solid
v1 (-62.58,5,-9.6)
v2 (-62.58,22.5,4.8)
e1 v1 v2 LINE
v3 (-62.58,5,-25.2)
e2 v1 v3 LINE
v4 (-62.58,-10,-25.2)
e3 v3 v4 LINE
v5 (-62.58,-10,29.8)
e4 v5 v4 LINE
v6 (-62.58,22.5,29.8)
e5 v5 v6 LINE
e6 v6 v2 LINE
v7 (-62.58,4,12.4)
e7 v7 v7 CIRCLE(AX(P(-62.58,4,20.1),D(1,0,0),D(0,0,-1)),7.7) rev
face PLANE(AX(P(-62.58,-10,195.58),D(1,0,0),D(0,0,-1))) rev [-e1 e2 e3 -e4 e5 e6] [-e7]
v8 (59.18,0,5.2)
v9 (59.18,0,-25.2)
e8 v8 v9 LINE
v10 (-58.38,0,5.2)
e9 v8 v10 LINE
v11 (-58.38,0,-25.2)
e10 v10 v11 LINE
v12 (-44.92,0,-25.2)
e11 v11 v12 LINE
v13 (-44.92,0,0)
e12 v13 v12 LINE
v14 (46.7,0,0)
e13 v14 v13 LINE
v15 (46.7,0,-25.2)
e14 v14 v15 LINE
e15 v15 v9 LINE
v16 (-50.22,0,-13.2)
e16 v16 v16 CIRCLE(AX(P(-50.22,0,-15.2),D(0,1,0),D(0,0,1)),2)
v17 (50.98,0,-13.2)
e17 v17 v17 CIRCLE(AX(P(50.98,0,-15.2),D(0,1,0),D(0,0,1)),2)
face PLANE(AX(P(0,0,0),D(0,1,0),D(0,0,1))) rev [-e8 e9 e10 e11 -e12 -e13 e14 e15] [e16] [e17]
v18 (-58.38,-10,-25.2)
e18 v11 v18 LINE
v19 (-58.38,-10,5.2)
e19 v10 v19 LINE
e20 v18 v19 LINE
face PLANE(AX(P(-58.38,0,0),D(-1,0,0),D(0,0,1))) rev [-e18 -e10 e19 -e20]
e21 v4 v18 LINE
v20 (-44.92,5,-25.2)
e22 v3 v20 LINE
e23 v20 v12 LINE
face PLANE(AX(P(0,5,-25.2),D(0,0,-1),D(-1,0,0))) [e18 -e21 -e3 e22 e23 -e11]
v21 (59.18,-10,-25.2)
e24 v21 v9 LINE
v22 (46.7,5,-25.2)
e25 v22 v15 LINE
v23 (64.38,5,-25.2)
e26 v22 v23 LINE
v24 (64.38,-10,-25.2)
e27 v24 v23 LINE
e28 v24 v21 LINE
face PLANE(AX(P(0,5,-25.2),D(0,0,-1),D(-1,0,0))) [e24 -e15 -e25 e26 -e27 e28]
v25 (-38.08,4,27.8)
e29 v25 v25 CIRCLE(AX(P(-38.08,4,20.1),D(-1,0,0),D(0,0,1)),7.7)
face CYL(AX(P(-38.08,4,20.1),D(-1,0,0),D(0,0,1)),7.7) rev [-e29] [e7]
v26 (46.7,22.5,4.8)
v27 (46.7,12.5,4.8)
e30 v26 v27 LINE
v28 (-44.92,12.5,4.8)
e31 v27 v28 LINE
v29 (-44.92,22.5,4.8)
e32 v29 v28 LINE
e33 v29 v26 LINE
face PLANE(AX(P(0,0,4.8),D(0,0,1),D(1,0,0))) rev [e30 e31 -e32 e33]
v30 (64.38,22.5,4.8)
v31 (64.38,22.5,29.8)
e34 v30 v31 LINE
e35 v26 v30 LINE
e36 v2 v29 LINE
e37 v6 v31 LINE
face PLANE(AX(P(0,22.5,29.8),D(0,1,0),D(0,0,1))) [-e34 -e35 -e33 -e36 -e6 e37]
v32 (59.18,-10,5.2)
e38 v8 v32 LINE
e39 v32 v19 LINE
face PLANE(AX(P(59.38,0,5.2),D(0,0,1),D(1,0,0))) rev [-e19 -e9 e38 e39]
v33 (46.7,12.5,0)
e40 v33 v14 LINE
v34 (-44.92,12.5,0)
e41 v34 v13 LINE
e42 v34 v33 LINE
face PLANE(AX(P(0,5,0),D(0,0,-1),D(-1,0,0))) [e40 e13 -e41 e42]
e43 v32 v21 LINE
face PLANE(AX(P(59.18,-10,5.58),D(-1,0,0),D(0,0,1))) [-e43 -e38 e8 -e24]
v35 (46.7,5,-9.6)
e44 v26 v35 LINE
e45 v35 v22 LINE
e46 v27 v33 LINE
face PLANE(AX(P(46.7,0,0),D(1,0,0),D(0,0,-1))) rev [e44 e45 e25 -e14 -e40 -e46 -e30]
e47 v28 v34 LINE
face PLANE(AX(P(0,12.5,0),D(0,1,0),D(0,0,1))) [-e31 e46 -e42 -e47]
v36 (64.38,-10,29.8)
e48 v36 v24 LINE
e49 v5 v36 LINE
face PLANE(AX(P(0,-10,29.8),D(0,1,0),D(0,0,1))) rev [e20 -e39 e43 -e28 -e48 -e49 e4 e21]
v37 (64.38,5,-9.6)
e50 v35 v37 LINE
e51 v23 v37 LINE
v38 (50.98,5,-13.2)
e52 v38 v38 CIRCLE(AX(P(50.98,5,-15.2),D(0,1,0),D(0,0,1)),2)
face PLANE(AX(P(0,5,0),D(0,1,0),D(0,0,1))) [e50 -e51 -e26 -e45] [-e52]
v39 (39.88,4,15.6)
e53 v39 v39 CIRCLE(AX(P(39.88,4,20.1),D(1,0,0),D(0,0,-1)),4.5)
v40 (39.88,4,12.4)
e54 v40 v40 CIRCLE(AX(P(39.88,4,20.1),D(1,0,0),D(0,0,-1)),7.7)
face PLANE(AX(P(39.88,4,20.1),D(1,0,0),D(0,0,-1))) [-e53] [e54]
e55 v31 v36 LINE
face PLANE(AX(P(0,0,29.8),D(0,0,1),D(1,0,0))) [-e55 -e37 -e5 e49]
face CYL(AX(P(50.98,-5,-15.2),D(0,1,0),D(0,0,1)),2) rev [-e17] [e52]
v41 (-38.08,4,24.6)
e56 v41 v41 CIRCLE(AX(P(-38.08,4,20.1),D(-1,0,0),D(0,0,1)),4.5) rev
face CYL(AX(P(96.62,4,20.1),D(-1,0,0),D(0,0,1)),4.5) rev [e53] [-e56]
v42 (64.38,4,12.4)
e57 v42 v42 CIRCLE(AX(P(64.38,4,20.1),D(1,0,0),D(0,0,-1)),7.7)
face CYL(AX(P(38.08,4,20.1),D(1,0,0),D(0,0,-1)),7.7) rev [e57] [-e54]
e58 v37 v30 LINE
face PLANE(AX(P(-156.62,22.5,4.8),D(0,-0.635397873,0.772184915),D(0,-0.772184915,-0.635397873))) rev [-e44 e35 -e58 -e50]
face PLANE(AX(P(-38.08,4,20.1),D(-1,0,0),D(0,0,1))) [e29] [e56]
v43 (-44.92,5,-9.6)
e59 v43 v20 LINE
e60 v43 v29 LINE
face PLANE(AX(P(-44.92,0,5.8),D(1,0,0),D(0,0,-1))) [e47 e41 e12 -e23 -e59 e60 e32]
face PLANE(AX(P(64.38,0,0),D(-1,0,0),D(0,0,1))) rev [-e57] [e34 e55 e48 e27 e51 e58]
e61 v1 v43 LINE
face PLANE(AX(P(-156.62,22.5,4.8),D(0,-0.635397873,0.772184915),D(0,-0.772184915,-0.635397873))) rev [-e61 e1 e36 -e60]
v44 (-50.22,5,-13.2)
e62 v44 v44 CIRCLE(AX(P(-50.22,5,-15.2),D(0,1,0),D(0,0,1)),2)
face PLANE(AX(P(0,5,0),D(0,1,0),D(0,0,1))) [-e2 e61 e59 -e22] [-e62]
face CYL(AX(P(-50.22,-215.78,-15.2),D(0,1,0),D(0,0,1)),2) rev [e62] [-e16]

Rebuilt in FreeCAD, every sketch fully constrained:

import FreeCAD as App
import Part
import Sketcher
from FreeCAD import Vector

doc = App.newDocument("Part")
body = doc.addObject("PartDesign::Body", "Body")

# Sketch on XZ plane
sketch1 = doc.addObject("Sketcher::SketchObject", "Sketch")
body.addObject(sketch1)
sketch1.AttachmentSupport = (doc.XZ_Plane, [""])
sketch1.MapMode = "FlatFace"
sketch1.addGeometry(Part.LineSegment(Vector(-58, -25, 0), Vector(-58, 5, 0)), False)
sketch1.addGeometry(Part.LineSegment(Vector(-58, 5, 0), Vector(58, 5, 0)), False)
sketch1.addGeometry(Part.LineSegment(Vector(58, 5, 0), Vector(58, -25, 0)), False)
sketch1.addGeometry(Part.LineSegment(Vector(58, -25, 0), Vector(46, -25, 0)), False)
sketch1.addGeometry(Part.LineSegment(Vector(46, -25, 0), Vector(46, 0, 0)), False)
sketch1.addGeometry(Part.LineSegment(Vector(46, 0, 0), Vector(-46, 0, 0)), False)
sketch1.addGeometry(Part.LineSegment(Vector(-46, 0, 0), Vector(-46, -25, 0)), False)
sketch1.addGeometry(Part.LineSegment(Vector(-46, -25, 0), Vector(-58, -25, 0)), False)
sketch1.addConstraint(Sketcher.Constraint("Coincident", 0, 2, 1, 1))
sketch1.addConstraint(Sketcher.Constraint("Coincident", 1, 2, 2, 1))
sketch1.addConstraint(Sketcher.Constraint("Coincident", 2, 2, 3, 1))
sketch1.addConstraint(Sketcher.Constraint("Coincident", 3, 2, 4, 1))
sketch1.addConstraint(Sketcher.Constraint("Coincident", 4, 2, 5, 1))
sketch1.addConstraint(Sketcher.Constraint("Coincident", 5, 2, 6, 1))
sketch1.addConstraint(Sketcher.Constraint("Coincident", 6, 2, 7, 1))
sketch1.addConstraint(Sketcher.Constraint("Coincident", 7, 2, 0, 1))
sketch1.addConstraint(Sketcher.Constraint("Vertical", 0))
sketch1.addConstraint(Sketcher.Constraint("Horizontal", 1))
sketch1.addConstraint(Sketcher.Constraint("Vertical", 2))
sketch1.addConstraint(Sketcher.Constraint("Horizontal", 3))
sketch1.addConstraint(Sketcher.Constraint("Vertical", 4))
sketch1.addConstraint(Sketcher.Constraint("Horizontal", 5))
sketch1.addConstraint(Sketcher.Constraint("Vertical", 6))
sketch1.addConstraint(Sketcher.Constraint("Horizontal", 7))
sketch1.addConstraint(Sketcher.Constraint("Symmetric", 4, 2, 5, 2, -1, 1))
sketch1.addConstraint(Sketcher.Constraint("Symmetric", 2, 2, 7, 2, -2))
sketch1.addConstraint(Sketcher.Constraint("DistanceY", 0, 1, 0, 2, 30.0))
sketch1.addConstraint(Sketcher.Constraint("DistanceX", 5, 2, 5, 1, 91.4))
sketch1.addConstraint(Sketcher.Constraint("DistanceY", 4, 1, 4, 2, 25.2))
sketch1.addConstraint(Sketcher.Constraint("DistanceX", 1, 1, 1, 2, 116.76))
pad1 = doc.addObject("PartDesign::Pad", "Pad")
body.addObject(pad1)
pad1.Profile = sketch1
pad1.Length = 5
pad1.Reversed = True

# Sketch on XZ plane
sketch2 = doc.addObject("Sketcher::SketchObject", "Sketch001")
body.addObject(sketch2)
sketch2.AttachmentSupport = (doc.XZ_Plane, [""])
sketch2.MapMode = "FlatFace"
sketch2.addGeometry(Part.LineSegment(Vector(-46, -13, 0), Vector(-58, -13, 0)), False)
sketch2.addGeometry(Part.LineSegment(Vector(-58, -13, 0), Vector(-58, 5, 0)), False)
sketch2.addGeometry(Part.LineSegment(Vector(-58, 5, 0), Vector(58, 5, 0)), False)
sketch2.addGeometry(Part.LineSegment(Vector(58, 5, 0), Vector(58, -13, 0)), False)
sketch2.addGeometry(Part.LineSegment(Vector(58, -13, 0), Vector(46, -13, 0)), False)
sketch2.addGeometry(Part.LineSegment(Vector(46, -13, 0), Vector(46, 0, 0)), False)
sketch2.addGeometry(Part.LineSegment(Vector(46, 0, 0), Vector(-46, 0, 0)), False)
sketch2.addGeometry(Part.LineSegment(Vector(-46, 0, 0), Vector(-46, -13, 0)), False)
sketch2.addConstraint(Sketcher.Constraint("Coincident", 0, 2, 1, 1))
sketch2.addConstraint(Sketcher.Constraint("Coincident", 1, 2, 2, 1))
sketch2.addConstraint(Sketcher.Constraint("Coincident", 2, 2, 3, 1))
sketch2.addConstraint(Sketcher.Constraint("Coincident", 3, 2, 4, 1))
sketch2.addConstraint(Sketcher.Constraint("Coincident", 4, 2, 5, 1))
sketch2.addConstraint(Sketcher.Constraint("Coincident", 5, 2, 6, 1))
sketch2.addConstraint(Sketcher.Constraint("Coincident", 6, 2, 7, 1))
sketch2.addConstraint(Sketcher.Constraint("Coincident", 7, 2, 0, 1))
sketch2.addConstraint(Sketcher.Constraint("Horizontal", 0))
sketch2.addConstraint(Sketcher.Constraint("Vertical", 1))
sketch2.addConstraint(Sketcher.Constraint("Horizontal", 2))
sketch2.addConstraint(Sketcher.Constraint("Vertical", 3))
sketch2.addConstraint(Sketcher.Constraint("Horizontal", 4))
sketch2.addConstraint(Sketcher.Constraint("Vertical", 5))
sketch2.addConstraint(Sketcher.Constraint("Horizontal", 6))
sketch2.addConstraint(Sketcher.Constraint("Vertical", 7))
sketch2.addConstraint(Sketcher.Constraint("Symmetric", 5, 2, 6, 2, -1, 1))
sketch2.addConstraint(Sketcher.Constraint("Symmetric", 0, 2, 3, 2, -2))
sketch2.addConstraint(Sketcher.Constraint("DistanceX", 6, 2, 6, 1, 91.4))
sketch2.addConstraint(Sketcher.Constraint("DistanceY", 1, 1, 1, 2, 17.4))
sketch2.addConstraint(Sketcher.Constraint("DistanceY", 5, 1, 5, 2, 12.6))
sketch2.addConstraint(Sketcher.Constraint("DistanceX", 0, 2, 0, 1, 12.68))
pad2 = doc.addObject("PartDesign::Pad", "Pad001")
body.addObject(pad2)
pad2.Profile = sketch2
pad2.Length = 5

# Sketch on XZ plane
sketch3 = doc.addObject("Sketcher::SketchObject", "Sketch002")
body.addObject(sketch3)
sketch3.AttachmentSupport = (doc.XZ_Plane, [""])
sketch3.MapMode = "FlatFace"
sketch3.addGeometry(Part.LineSegment(Vector(-46, -13, 0), Vector(-58, -13, 0)), False)
sketch3.addGeometry(Part.LineSegment(Vector(-58, -13, 0), Vector(-58, 5, 0)), False)
sketch3.addGeometry(Part.LineSegment(Vector(-58, 5, 0), Vector(58, 5, 0)), False)
sketch3.addGeometry(Part.LineSegment(Vector(58, 5, 0), Vector(58, -13, 0)), False)
sketch3.addGeometry(Part.LineSegment(Vector(58, -13, 0), Vector(46, -13, 0)), False)
sketch3.addGeometry(Part.LineSegment(Vector(46, -13, 0), Vector(46, 0, 0)), False)
sketch3.addGeometry(Part.LineSegment(Vector(46, 0, 0), Vector(-46, 0, 0)), False)
sketch3.addGeometry(Part.LineSegment(Vector(-46, 0, 0), Vector(-46, -13, 0)), False)
sketch3.addConstraint(Sketcher.Constraint("Coincident", 0, 2, 1, 1))
sketch3.addConstraint(Sketcher.Constraint("Coincident", 1, 2, 2, 1))
sketch3.addConstraint(Sketcher.Constraint("Coincident", 2, 2, 3, 1))
sketch3.addConstraint(Sketcher.Constraint("Coincident", 3, 2, 4, 1))
sketch3.addConstraint(Sketcher.Constraint("Coincident", 4, 2, 5, 1))
sketch3.addConstraint(Sketcher.Constraint("Coincident", 5, 2, 6, 1))
sketch3.addConstraint(Sketcher.Constraint("Coincident", 6, 2, 7, 1))
sketch3.addConstraint(Sketcher.Constraint("Coincident", 7, 2, 0, 1))
sketch3.addConstraint(Sketcher.Constraint("Horizontal", 0))
sketch3.addConstraint(Sketcher.Constraint("Vertical", 1))
sketch3.addConstraint(Sketcher.Constraint("Horizontal", 2))
sketch3.addConstraint(Sketcher.Constraint("Vertical", 3))
sketch3.addConstraint(Sketcher.Constraint("Horizontal", 4))
sketch3.addConstraint(Sketcher.Constraint("Vertical", 5))
sketch3.addConstraint(Sketcher.Constraint("Horizontal", 6))
sketch3.addConstraint(Sketcher.Constraint("Vertical", 7))
sketch3.addConstraint(Sketcher.Constraint("Symmetric", 5, 2, 6, 2, -1, 1))
sketch3.addConstraint(Sketcher.Constraint("Symmetric", 0, 2, 3, 2, -2))
sketch3.addConstraint(Sketcher.Constraint("DistanceX", 6, 2, 6, 1, 91.4))
sketch3.addConstraint(Sketcher.Constraint("DistanceY", 1, 1, 1, 2, 17.4))
sketch3.addConstraint(Sketcher.Constraint("DistanceY", 5, 1, 5, 2, 12.6))
sketch3.addConstraint(Sketcher.Constraint("DistanceX", 0, 2, 0, 1, 12.68))
pad3 = doc.addObject("PartDesign::Pad", "Pad002")
body.addObject(pad3)
pad3.Profile = sketch3
pad3.Length = 12.5
pad3.Reversed = True

# Sketch on YZ plane
sketch4 = doc.addObject("Sketcher::SketchObject", "Sketch003")
body.addObject(sketch4)
sketch4.AttachmentSupport = (doc.YZ_Plane, [""])
sketch4.MapMode = "FlatFace"
sketch4.AttachmentOffset = App.Placement(Vector(0, 0, 45.7), App.Rotation())
sketch4.addGeometry(Part.LineSegment(Vector(0, -13, 0), Vector(-5, -13, 0)), False)
sketch4.addGeometry(Part.LineSegment(Vector(-5, -13, 0), Vector(-5, 0, 0)), False)
sketch4.addGeometry(Part.LineSegment(Vector(-5, 0, 0), Vector(0, 0, 0)), False)
sketch4.addGeometry(Part.LineSegment(Vector(0, 0, 0), Vector(0, -13, 0)), False)
sketch4.addConstraint(Sketcher.Constraint("Coincident", 0, 2, 1, 1))
sketch4.addConstraint(Sketcher.Constraint("Coincident", 1, 2, 2, 1))
sketch4.addConstraint(Sketcher.Constraint("Coincident", 2, 2, 3, 1))
sketch4.addConstraint(Sketcher.Constraint("Coincident", 3, 2, 0, 1))
sketch4.addConstraint(Sketcher.Constraint("Horizontal", 0))
sketch4.addConstraint(Sketcher.Constraint("Vertical", 1))
sketch4.addConstraint(Sketcher.Constraint("Horizontal", 2))
sketch4.addConstraint(Sketcher.Constraint("Vertical", 3))
sketch4.addConstraint(Sketcher.Constraint("Coincident", 2, 2, -1, 1))
sketch4.addConstraint(Sketcher.Constraint("DistanceX", 0, 2, 0, 1, 5.0))
sketch4.addConstraint(Sketcher.Constraint("DistanceY", 1, 1, 1, 2, 12.6))
pocket1 = doc.addObject("PartDesign::Pocket", "Pocket")
body.addObject(pocket1)
pocket1.Profile = sketch4
pocket1.Length = 255
pocket1.Midplane = True

# Sketch on YZ plane
sketch5 = doc.addObject("Sketcher::SketchObject", "Sketch004")
body.addObject(sketch5)
sketch5.AttachmentSupport = (doc.YZ_Plane, [""])
sketch5.MapMode = "FlatFace"
sketch5.AttachmentOffset = App.Placement(Vector(0, 0, -58.38), App.Rotation())
sketch5.addGeometry(Part.LineSegment(Vector(0, 0, 0), Vector(-5, 0, 0)), False)
sketch5.addGeometry(Part.LineSegment(Vector(-5, 0, 0), Vector(-5, 4.8, 0)), False)
sketch5.addGeometry(Part.LineSegment(Vector(-5, 4.8, 0), Vector(0, 4.8, 0)), False)
sketch5.addGeometry(Part.LineSegment(Vector(0, 4.8, 0), Vector(0, 0, 0)), False)
sketch5.addConstraint(Sketcher.Constraint("Coincident", 0, 2, 1, 1))
sketch5.addConstraint(Sketcher.Constraint("Coincident", 1, 2, 2, 1))
sketch5.addConstraint(Sketcher.Constraint("Coincident", 2, 2, 3, 1))
sketch5.addConstraint(Sketcher.Constraint("Coincident", 3, 2, 0, 1))
sketch5.addConstraint(Sketcher.Constraint("Horizontal", 0))
sketch5.addConstraint(Sketcher.Constraint("Vertical", 1))
sketch5.addConstraint(Sketcher.Constraint("Horizontal", 2))
sketch5.addConstraint(Sketcher.Constraint("Vertical", 3))
sketch5.addConstraint(Sketcher.Constraint("Coincident", 3, 2, -1, 1))
sketch5.addConstraint(Sketcher.Constraint("DistanceX", 0, 2, 0, 1, 5.0))
sketch5.addConstraint(Sketcher.Constraint("DistanceY", 1, 1, 1, 2, 4.8))
pocket2 = doc.addObject("PartDesign::Pocket", "Pocket001")
body.addObject(pocket2)
pocket2.Profile = sketch5
pocket2.Length = 255
pocket2.Reversed = True

# Sketch on XY plane
sketch6 = doc.addObject("Sketcher::SketchObject", "Sketch005")
body.addObject(sketch6)
sketch6.AttachmentSupport = (doc.XY_Plane, [""])
sketch6.MapMode = "FlatFace"
sketch6.AttachmentOffset = App.Placement(Vector(0, 0, 4.8), App.Rotation())
sketch6.addGeometry(Part.LineSegment(Vector(-58, -10, 0), Vector(58, -10, 0)), False)
sketch6.addGeometry(Part.LineSegment(Vector(58, -10, 0), Vector(58, 22, 0)), False)
sketch6.addGeometry(Part.LineSegment(Vector(58, 22, 0), Vector(-58, 22, 0)), False)
sketch6.addGeometry(Part.LineSegment(Vector(-58, 22, 0), Vector(-58, -10, 0)), False)
sketch6.addConstraint(Sketcher.Constraint("Coincident", 0, 2, 1, 1))
sketch6.addConstraint(Sketcher.Constraint("Coincident", 1, 2, 2, 1))
sketch6.addConstraint(Sketcher.Constraint("Coincident", 2, 2, 3, 1))
sketch6.addConstraint(Sketcher.Constraint("Coincident", 3, 2, 0, 1))
sketch6.addConstraint(Sketcher.Constraint("Horizontal", 0))
sketch6.addConstraint(Sketcher.Constraint("Vertical", 1))
sketch6.addConstraint(Sketcher.Constraint("Horizontal", 2))
sketch6.addConstraint(Sketcher.Constraint("Vertical", 3))
sketch6.addConstraint(Sketcher.Constraint("DistanceY", 1, 1, 1, 2, 32.5))
sketch6.addConstraint(Sketcher.Constraint("DistanceY", 0, 2, -1, 1, 10.0))
sketch6.addConstraint(Sketcher.Constraint("DistanceX", 0, 1, 0, 2, 116.76))
sketch6.addConstraint(Sketcher.Constraint("DistanceX", -1, 1, 0, 2, 58.38))
pad4 = doc.addObject("PartDesign::Pad", "Pad003")
body.addObject(pad4)
pad4.Profile = sketch6
pad4.Length = 25

# Sketch on YZ plane
sketch7 = doc.addObject("Sketcher::SketchObject", "Sketch006")
body.addObject(sketch7)
sketch7.AttachmentSupport = (doc.YZ_Plane, [""])
sketch7.MapMode = "FlatFace"
sketch7.AttachmentOffset = App.Placement(Vector(0, 0, -58.38), App.Rotation())
sketch7.addGeometry(Part.Circle(Vector(4, 20.1, 0), Vector(0, 0, 1), 4.5), False)
sketch7.addConstraint(Sketcher.Constraint("Diameter", 0, 9.0))
sketch7.addConstraint(Sketcher.Constraint("DistanceX", -1, 1, 0, 3, 4.0))
sketch7.addConstraint(Sketcher.Constraint("DistanceY", -1, 1, 0, 3, 20.1))
pocket3 = doc.addObject("PartDesign::Pocket", "Pocket002")
body.addObject(pocket3)
pocket3.Profile = sketch7
pocket3.Length = 155
pocket3.Reversed = True

# Sketch on YZ plane
sketch8 = doc.addObject("Sketcher::SketchObject", "Sketch007")
body.addObject(sketch8)
sketch8.AttachmentSupport = (doc.YZ_Plane, [""])
sketch8.MapMode = "FlatFace"
sketch8.AttachmentOffset = App.Placement(Vector(0, 0, -58.38), App.Rotation())
sketch8.addGeometry(Part.Circle(Vector(4, 20, 0), Vector(0, 0, 1), 8), False)
sketch8.addConstraint(Sketcher.Constraint("Diameter", 0, 15.4))
sketch8.addConstraint(Sketcher.Constraint("DistanceX", -1, 1, 0, 3, 4.0))
sketch8.addConstraint(Sketcher.Constraint("DistanceY", -1, 1, 0, 3, 20.1))
pocket4 = doc.addObject("PartDesign::Pocket", "Pocket003")
body.addObject(pocket4)
pocket4.Profile = sketch8
pocket4.Length = 20.3
pocket4.Reversed = True
doc.recompute()

mirrored = doc.addObject("PartDesign::Mirrored", "Mirrored")
body.addObject(mirrored)
mirrored.Originals = [pocket4]
mirrored.MirrorPlane = (doc.YZ_Plane, [""])
body.Tip = mirrored

# Sketch on YZ plane
sketch9 = doc.addObject("Sketcher::SketchObject", "Sketch008")
body.addObject(sketch9)
sketch9.AttachmentSupport = (doc.YZ_Plane, [""])
sketch9.MapMode = "FlatFace"
sketch9.AttachmentOffset = App.Placement(Vector(0, 0, -58.38), App.Rotation())
sketch9.addGeometry(Part.LineSegment(Vector(5, -25, 0), Vector(-10, -25, 0)), False)
sketch9.addGeometry(Part.LineSegment(Vector(-10, -25, 0), Vector(-10, 30, 0)), False)
sketch9.addGeometry(Part.LineSegment(Vector(-10, 30, 0), Vector(22, 30, 0)), False)
sketch9.addGeometry(Part.LineSegment(Vector(22, 30, 0), Vector(22, 5, 0)), False)
sketch9.addGeometry(Part.LineSegment(Vector(22, 5, 0), Vector(12, 5, 0)), False)
sketch9.addGeometry(Part.LineSegment(Vector(12, 5, 0), Vector(12, -13, 0)), False)
sketch9.addGeometry(Part.LineSegment(Vector(12, -13, 0), Vector(5, -13, 0)), False)
sketch9.addGeometry(Part.LineSegment(Vector(5, -13, 0), Vector(5, -25, 0)), False)
sketch9.addGeometry(Part.Circle(Vector(4, 20, 0), Vector(0, 0, 1), 8), False)
sketch9.addConstraint(Sketcher.Constraint("Coincident", 0, 2, 1, 1))
sketch9.addConstraint(Sketcher.Constraint("Coincident", 1, 2, 2, 1))
sketch9.addConstraint(Sketcher.Constraint("Coincident", 2, 2, 3, 1))
sketch9.addConstraint(Sketcher.Constraint("Coincident", 3, 2, 4, 1))
sketch9.addConstraint(Sketcher.Constraint("Coincident", 4, 2, 5, 1))
sketch9.addConstraint(Sketcher.Constraint("Coincident", 5, 2, 6, 1))
sketch9.addConstraint(Sketcher.Constraint("Coincident", 6, 2, 7, 1))
sketch9.addConstraint(Sketcher.Constraint("Coincident", 7, 2, 0, 1))
sketch9.addConstraint(Sketcher.Constraint("Horizontal", 0))
sketch9.addConstraint(Sketcher.Constraint("Vertical", 1))
sketch9.addConstraint(Sketcher.Constraint("Horizontal", 2))
sketch9.addConstraint(Sketcher.Constraint("Vertical", 3))
sketch9.addConstraint(Sketcher.Constraint("Horizontal", 4))
sketch9.addConstraint(Sketcher.Constraint("Vertical", 5))
sketch9.addConstraint(Sketcher.Constraint("Horizontal", 6))
sketch9.addConstraint(Sketcher.Constraint("Vertical", 7))
sketch9.addConstraint(Sketcher.Constraint("Diameter", 8, 15.4))
sketch9.addConstraint(Sketcher.Constraint("DistanceX", 0, 2, 0, 1, 15.0))
sketch9.addConstraint(Sketcher.Constraint("DistanceX", 4, 2, 4, 1, 10.0))
sketch9.addConstraint(Sketcher.Constraint("DistanceY", 1, 1, 1, 2, 55.0))
sketch9.addConstraint(Sketcher.Constraint("DistanceY", 3, 2, 3, 1, 25.0))
sketch9.addConstraint(Sketcher.Constraint("DistanceX", 2, 1, 2, 2, 32.5))
sketch9.addConstraint(Sketcher.Constraint("DistanceY", 5, 2, 5, 1, 17.4))
sketch9.addConstraint(Sketcher.Constraint("DistanceX", -1, 1, 8, 3, 4.0))
sketch9.addConstraint(Sketcher.Constraint("DistanceX", 0, 2, -1, 1, 10.0))
sketch9.addConstraint(Sketcher.Constraint("DistanceY", -1, 1, 8, 3, 20.1))
sketch9.addConstraint(Sketcher.Constraint("DistanceY", 0, 2, -1, 1, 25.2))
pad5 = doc.addObject("PartDesign::Pad", "Pad004")
body.addObject(pad5)
pad5.Profile = sketch9
pad5.Length = 5
pad5.Reversed = True
doc.recompute()

mirrored2 = doc.addObject("PartDesign::Mirrored", "Mirrored001")
body.addObject(mirrored2)
mirrored2.Originals = [pad5]
mirrored2.MirrorPlane = (doc.YZ_Plane, [""])
body.Tip = mirrored2

# Sketch on XY plane
sketch10 = doc.addObject("Sketcher::SketchObject", "Sketch009")
body.addObject(sketch10)
sketch10.AttachmentSupport = (doc.XY_Plane, [""])
sketch10.MapMode = "FlatFace"
sketch10.AttachmentOffset = App.Placement(Vector(0, 0, -25.2), App.Rotation())
sketch10.addGeometry(Part.LineSegment(Vector(59.4, -10, 0), Vector(42.2, -10, 0)), False)
sketch10.addGeometry(Part.LineSegment(Vector(42.2, -10, 0), Vector(42.2, 12.5, 0)), False)
sketch10.addGeometry(Part.LineSegment(Vector(42.2, 12.5, 0), Vector(46.7, 12.5, 0)), False)
sketch10.addGeometry(Part.LineSegment(Vector(46.7, 12.5, 0), Vector(46.7, 0, 0)), False)
sketch10.addGeometry(Part.LineSegment(Vector(46.7, 0, 0), Vector(59.4, 0, 0)), False)
sketch10.addGeometry(Part.LineSegment(Vector(59.4, 0, 0), Vector(59.4, -10, 0)), False)
sketch10.addConstraint(Sketcher.Constraint("Coincident", 0, 2, 1, 1))
sketch10.addConstraint(Sketcher.Constraint("Coincident", 1, 2, 2, 1))
sketch10.addConstraint(Sketcher.Constraint("Coincident", 2, 2, 3, 1))
sketch10.addConstraint(Sketcher.Constraint("Coincident", 3, 2, 4, 1))
sketch10.addConstraint(Sketcher.Constraint("Coincident", 4, 2, 5, 1))
sketch10.addConstraint(Sketcher.Constraint("Coincident", 5, 2, 0, 1))
sketch10.addConstraint(Sketcher.Constraint("Horizontal", 0))
sketch10.addConstraint(Sketcher.Constraint("Vertical", 1))
sketch10.addConstraint(Sketcher.Constraint("Horizontal", 2))
sketch10.addConstraint(Sketcher.Constraint("Vertical", 3))
sketch10.addConstraint(Sketcher.Constraint("Horizontal", 4))
sketch10.addConstraint(Sketcher.Constraint("Vertical", 5))
sketch10.addConstraint(Sketcher.Constraint("PointOnObject", 3, 2, -1))
sketch10.addConstraint(Sketcher.Constraint("DistanceY", 5, 2, 5, 1, 10.0))
sketch10.addConstraint(Sketcher.Constraint("DistanceY", 1, 1, 1, 2, 22.5))
sketch10.addConstraint(Sketcher.Constraint("DistanceX", 4, 1, 4, 2, 12.68))
sketch10.addConstraint(Sketcher.Constraint("DistanceX", -1, 1, 2, 2, 46.7))
sketch10.addConstraint(Sketcher.Constraint("DistanceX", 0, 2, 0, 1, 17.19521))
pocket5 = doc.addObject("PartDesign::Pocket", "Pocket004")
body.addObject(pocket5)
pocket5.Profile = sketch10
pocket5.Length = 25.2
pocket5.Reversed = True

# Sketch on XY plane
sketch11 = doc.addObject("Sketcher::SketchObject", "Sketch010")
body.addObject(sketch11)
sketch11.AttachmentSupport = (doc.XY_Plane, [""])
sketch11.MapMode = "FlatFace"
sketch11.addGeometry(Part.LineSegment(Vector(59.4, 0, 0), Vector(59.4, -10, 0)), False)
sketch11.addGeometry(Part.LineSegment(Vector(59.4, -10, 0), Vector(58.4, -10, 0)), False)
sketch11.addGeometry(Part.LineSegment(Vector(58.4, -10, 0), Vector(58.4, 0, 0)), False)
sketch11.addGeometry(Part.LineSegment(Vector(58.4, 0, 0), Vector(59.4, 0, 0)), False)
sketch11.addConstraint(Sketcher.Constraint("Coincident", 0, 2, 1, 1))
sketch11.addConstraint(Sketcher.Constraint("Coincident", 1, 2, 2, 1))
sketch11.addConstraint(Sketcher.Constraint("Coincident", 2, 2, 3, 1))
sketch11.addConstraint(Sketcher.Constraint("Coincident", 3, 2, 0, 1))
sketch11.addConstraint(Sketcher.Constraint("Vertical", 0))
sketch11.addConstraint(Sketcher.Constraint("Horizontal", 1))
sketch11.addConstraint(Sketcher.Constraint("Vertical", 2))
sketch11.addConstraint(Sketcher.Constraint("Horizontal", 3))
sketch11.addConstraint(Sketcher.Constraint("PointOnObject", 2, 2, -1))
sketch11.addConstraint(Sketcher.Constraint("DistanceX", 1, 2, 1, 1, 1.0))
sketch11.addConstraint(Sketcher.Constraint("DistanceY", 0, 2, 0, 1, 10.0))
sketch11.addConstraint(Sketcher.Constraint("DistanceX", -1, 1, 0, 2, 59.38))
pocket6 = doc.addObject("PartDesign::Pocket", "Pocket005")
body.addObject(pocket6)
pocket6.Profile = sketch11
pocket6.Length = 4.8
pocket6.Reversed = True

# Sketch on XZ plane
sketch12 = doc.addObject("Sketcher::SketchObject", "Sketch011")
body.addObject(sketch12)
sketch12.AttachmentSupport = (doc.XZ_Plane, [""])
sketch12.MapMode = "FlatFace"
sketch12.AttachmentOffset = App.Placement(Vector(0, 0, 10), App.Rotation())
sketch12.addGeometry(Part.LineSegment(Vector(-58.38, 5.2, 0), Vector(-58.38, 4.8, 0)), False)
sketch12.addGeometry(Part.LineSegment(Vector(-58.38, 4.8, 0), Vector(59.38, 4.8, 0)), False)
sketch12.addGeometry(Part.LineSegment(Vector(59.38, 4.8, 0), Vector(59.38, 5.2, 0)), False)
sketch12.addGeometry(Part.LineSegment(Vector(59.38, 5.2, 0), Vector(-58.38, 5.2, 0)), False)
sketch12.addConstraint(Sketcher.Constraint("Coincident", 0, 2, 1, 1))
sketch12.addConstraint(Sketcher.Constraint("Coincident", 1, 2, 2, 1))
sketch12.addConstraint(Sketcher.Constraint("Coincident", 2, 2, 3, 1))
sketch12.addConstraint(Sketcher.Constraint("Coincident", 3, 2, 0, 1))
sketch12.addConstraint(Sketcher.Constraint("Vertical", 0))
sketch12.addConstraint(Sketcher.Constraint("Horizontal", 1))
sketch12.addConstraint(Sketcher.Constraint("Vertical", 2))
sketch12.addConstraint(Sketcher.Constraint("Horizontal", 3))
sketch12.addConstraint(Sketcher.Constraint("DistanceY", 0, 2, 0, 1, 0.4))
sketch12.addConstraint(Sketcher.Constraint("DistanceX", 1, 1, 1, 2, 117.76))
sketch12.addConstraint(Sketcher.Constraint("DistanceY", -1, 1, 0, 2, 4.8))
sketch12.addConstraint(Sketcher.Constraint("DistanceX", 0, 2, -1, 1, 58.38))
pocket7 = doc.addObject("PartDesign::Pocket", "Pocket006")
body.addObject(pocket7)
pocket7.Profile = sketch12
pocket7.Length = 10

# Sketch on XZ plane
sketch13 = doc.addObject("Sketcher::SketchObject", "Sketch012")
body.addObject(sketch13)
sketch13.AttachmentSupport = (doc.XZ_Plane, [""])
sketch13.MapMode = "FlatFace"
sketch13.AttachmentOffset = App.Placement(Vector(0, 0, -5), App.Rotation())
sketch13.addGeometry(Part.Circle(Vector(51, -15.2, 0), Vector(0, 0, 1), 2), False)
sketch13.addConstraint(Sketcher.Constraint("Diameter", 0, 4.0))
sketch13.addConstraint(Sketcher.Constraint("DistanceY", 0, 3, -1, 1, 15.2))
sketch13.addConstraint(Sketcher.Constraint("DistanceX", -1, 1, 0, 3, 50.98))
pocket8 = doc.addObject("PartDesign::Pocket", "Pocket007")
body.addObject(pocket8)
pocket8.Profile = sketch13
pocket8.Length = 10
pocket8.Reversed = True

# Sketch on YZ plane
sketch14 = doc.addObject("Sketcher::SketchObject", "Sketch013")
body.addObject(sketch14)
sketch14.AttachmentSupport = (doc.YZ_Plane, [""])
sketch14.MapMode = "FlatFace"
sketch14.AttachmentOffset = App.Placement(Vector(0, 0, 63.38), App.Rotation())
sketch14.addGeometry(Part.LineSegment(Vector(12.5, -9.6, 0), Vector(5, -9.6, 0)), False)
sketch14.addGeometry(Part.LineSegment(Vector(5, -9.6, 0), Vector(5, -12.6, 0)), False)
sketch14.addGeometry(Part.LineSegment(Vector(5, -12.6, 0), Vector(12.5, -12.6, 0)), False)
sketch14.addGeometry(Part.LineSegment(Vector(12.5, -12.6, 0), Vector(12.5, -9.6, 0)), False)
sketch14.addConstraint(Sketcher.Constraint("Coincident", 0, 2, 1, 1))
sketch14.addConstraint(Sketcher.Constraint("Coincident", 1, 2, 2, 1))
sketch14.addConstraint(Sketcher.Constraint("Coincident", 2, 2, 3, 1))
sketch14.addConstraint(Sketcher.Constraint("Coincident", 3, 2, 0, 1))
sketch14.addConstraint(Sketcher.Constraint("Horizontal", 0))
sketch14.addConstraint(Sketcher.Constraint("Vertical", 1))
sketch14.addConstraint(Sketcher.Constraint("Horizontal", 2))
sketch14.addConstraint(Sketcher.Constraint("Vertical", 3))
sketch14.addConstraint(Sketcher.Constraint("DistanceY", 1, 2, 1, 1, 3.0))
sketch14.addConstraint(Sketcher.Constraint("DistanceX", 0, 2, 0, 1, 7.5))
sketch14.addConstraint(Sketcher.Constraint("DistanceX", -1, 1, 0, 2, 5.0))
sketch14.addConstraint(Sketcher.Constraint("DistanceY", 0, 2, -1, 1, 9.6))
pocket9 = doc.addObject("PartDesign::Pocket", "Pocket008")
body.addObject(pocket9)
pocket9.Profile = sketch14
pocket9.Length = 220

# Sketch on YZ plane
sketch15 = doc.addObject("Sketcher::SketchObject", "Sketch014")
body.addObject(sketch15)
sketch15.AttachmentSupport = (doc.YZ_Plane, [""])
sketch15.MapMode = "FlatFace"
sketch15.AttachmentOffset = App.Placement(Vector(0, 0, 63.38), App.Rotation())
sketch15.addGeometry(Part.LineSegment(Vector(5, -10, 0), Vector(22, -10, 0)), False)
sketch15.addGeometry(Part.LineSegment(Vector(22, -10, 0), Vector(22, 5, 0)), False)
sketch15.addGeometry(Part.LineSegment(Vector(22, 5, 0), Vector(5, -10, 0)), False)
sketch15.addConstraint(Sketcher.Constraint("Coincident", 0, 2, 1, 1))
sketch15.addConstraint(Sketcher.Constraint("Coincident", 1, 2, 2, 1))
sketch15.addConstraint(Sketcher.Constraint("Coincident", 2, 2, 0, 1))
sketch15.addConstraint(Sketcher.Constraint("Horizontal", 0))
sketch15.addConstraint(Sketcher.Constraint("Vertical", 1))
sketch15.addConstraint(Sketcher.Constraint("DistanceX", 0, 1, 0, 2, 17.5))
sketch15.addConstraint(Sketcher.Constraint("DistanceY", 1, 1, 1, 2, 14.4))
sketch15.addConstraint(Sketcher.Constraint("DistanceX", -1, 1, 2, 2, 5.0))
sketch15.addConstraint(Sketcher.Constraint("DistanceY", 0, 2, -1, 1, 9.6))
pocket10 = doc.addObject("PartDesign::Pocket", "Pocket009")
body.addObject(pocket10)
pocket10.Profile = sketch15
pocket10.Length = 220

# Sketch on YZ plane
sketch16 = doc.addObject("Sketcher::SketchObject", "Sketch015")
body.addObject(sketch16)
sketch16.AttachmentSupport = (doc.YZ_Plane, [""])
sketch16.MapMode = "FlatFace"
sketch16.AttachmentOffset = App.Placement(Vector(0, 0, 63.38), App.Rotation())
sketch16.addGeometry(Part.LineSegment(Vector(12, -3, 0), Vector(22, 5, 0)), False)
sketch16.addGeometry(Part.LineSegment(Vector(22, 5, 0), Vector(12, 5, 0)), False)
sketch16.addGeometry(Part.LineSegment(Vector(12, 5, 0), Vector(12, -3, 0)), False)
sketch16.addConstraint(Sketcher.Constraint("Coincident", 0, 2, 1, 1))
sketch16.addConstraint(Sketcher.Constraint("Coincident", 1, 2, 2, 1))
sketch16.addConstraint(Sketcher.Constraint("Coincident", 2, 2, 0, 1))
sketch16.addConstraint(Sketcher.Constraint("Horizontal", 1))
sketch16.addConstraint(Sketcher.Constraint("Vertical", 2))
sketch16.addConstraint(Sketcher.Constraint("DistanceX", 1, 2, 1, 1, 10.0))
sketch16.addConstraint(Sketcher.Constraint("DistanceX", -1, 1, 0, 2, 22.5))
sketch16.addConstraint(Sketcher.Constraint("DistanceY", -1, 1, 0, 2, 4.8))
sketch16.addConstraint(Sketcher.Constraint("DistanceY", 2, 2, 2, 1, 8.228571))
pad6 = doc.addObject("PartDesign::Pad", "Pad005")
body.addObject(pad6)
pad6.Profile = sketch16
pad6.Length = 16.68
pad6.Reversed = True
doc.recompute()

mirrored3 = doc.addObject("PartDesign::Mirrored", "Mirrored002")
body.addObject(mirrored3)
mirrored3.Originals = [pad6]
mirrored3.MirrorPlane = (doc.YZ_Plane, [""])
body.Tip = mirrored3

# Sketch on YZ plane
sketch17 = doc.addObject("Sketcher::SketchObject", "Sketch016")
body.addObject(sketch17)
sketch17.AttachmentSupport = (doc.YZ_Plane, [""])
sketch17.MapMode = "FlatFace"
sketch17.AttachmentOffset = App.Placement(Vector(0, 0, 63.38), App.Rotation())
sketch17.addGeometry(Part.LineSegment(Vector(22, 5, 0), Vector(22, 30, 0)), False)
sketch17.addGeometry(Part.LineSegment(Vector(22, 30, 0), Vector(-10, 30, 0)), False)
sketch17.addGeometry(Part.LineSegment(Vector(-10, 30, 0), Vector(-10, -25, 0)), False)
sketch17.addGeometry(Part.LineSegment(Vector(-10, -25, 0), Vector(5, -25, 0)), False)
sketch17.addGeometry(Part.LineSegment(Vector(5, -25, 0), Vector(5, -10, 0)), False)
sketch17.addGeometry(Part.LineSegment(Vector(5, -10, 0), Vector(22, 5, 0)), False)
sketch17.addGeometry(Part.Circle(Vector(4, 20, 0), Vector(0, 0, 1), 8), False)
sketch17.addConstraint(Sketcher.Constraint("Coincident", 0, 2, 1, 1))
sketch17.addConstraint(Sketcher.Constraint("Coincident", 1, 2, 2, 1))
sketch17.addConstraint(Sketcher.Constraint("Coincident", 2, 2, 3, 1))
sketch17.addConstraint(Sketcher.Constraint("Coincident", 3, 2, 4, 1))
sketch17.addConstraint(Sketcher.Constraint("Coincident", 4, 2, 5, 1))
sketch17.addConstraint(Sketcher.Constraint("Coincident", 5, 2, 0, 1))
sketch17.addConstraint(Sketcher.Constraint("Vertical", 0))
sketch17.addConstraint(Sketcher.Constraint("Horizontal", 1))
sketch17.addConstraint(Sketcher.Constraint("Vertical", 2))
sketch17.addConstraint(Sketcher.Constraint("Horizontal", 3))
sketch17.addConstraint(Sketcher.Constraint("Vertical", 4))
sketch17.addConstraint(Sketcher.Constraint("Diameter", 6, 15.4))
sketch17.addConstraint(Sketcher.Constraint("DistanceX", 3, 1, 3, 2, 15.0))
sketch17.addConstraint(Sketcher.Constraint("DistanceY", 0, 1, 0, 2, 25.0))
sketch17.addConstraint(Sketcher.Constraint("DistanceY", 2, 2, 2, 1, 55.0))
sketch17.addConstraint(Sketcher.Constraint("DistanceX", 1, 2, 1, 1, 32.5))
sketch17.addConstraint(Sketcher.Constraint("DistanceY", 4, 1, 4, 2, 15.6))
sketch17.addConstraint(Sketcher.Constraint("DistanceX", -1, 1, 6, 3, 4.0))
sketch17.addConstraint(Sketcher.Constraint("DistanceX", 1, 2, -1, 1, 10.0))
sketch17.addConstraint(Sketcher.Constraint("DistanceY", -1, 1, 6, 3, 20.1))
sketch17.addConstraint(Sketcher.Constraint("DistanceY", -1, 1, 0, 2, 29.8))
pad7 = doc.addObject("PartDesign::Pad", "Pad006")
body.addObject(pad7)
pad7.Profile = sketch17
pad7.Length = 1

# Sketch on YZ plane
sketch18 = doc.addObject("Sketcher::SketchObject", "Sketch017")
body.addObject(sketch18)
sketch18.AttachmentSupport = (doc.YZ_Plane, [""])
sketch18.MapMode = "FlatFace"
sketch18.AttachmentOffset = App.Placement(Vector(0, 0, 38.08), App.Rotation())
sketch18.addGeometry(Part.Circle(Vector(4, 20.1, 0), Vector(0, 0, 1), 7.7), False)
sketch18.addGeometry(Part.Circle(Vector(4, 20.1, 0), Vector(0, 0, 1), 4.5), False)
sketch18.addConstraint(Sketcher.Constraint("Coincident", 1, 3, 0, 3))
sketch18.addConstraint(Sketcher.Constraint("Diameter", 1, 9.0))
sketch18.addConstraint(Sketcher.Constraint("Diameter", 0, 15.4))
sketch18.addConstraint(Sketcher.Constraint("DistanceX", -1, 1, 0, 3, 4.0))
sketch18.addConstraint(Sketcher.Constraint("DistanceY", -1, 1, 0, 3, 20.1))
pad8 = doc.addObject("PartDesign::Pad", "Pad007")
body.addObject(pad8)
pad8.Profile = sketch18
pad8.Length = 1.8

# Sketch on YZ plane
sketch19 = doc.addObject("Sketcher::SketchObject", "Sketch018")
body.addObject(sketch19)
sketch19.AttachmentSupport = (doc.YZ_Plane, [""])
sketch19.MapMode = "FlatFace"
sketch19.AttachmentOffset = App.Placement(Vector(0, 0, -46.7), App.Rotation())
sketch19.addGeometry(Part.LineSegment(Vector(12, 5, 0), Vector(12, -3, 0)), False)
sketch19.addGeometry(Part.LineSegment(Vector(12, -3, 0), Vector(22, 5, 0)), False)
sketch19.addGeometry(Part.LineSegment(Vector(22, 5, 0), Vector(12, 5, 0)), False)
sketch19.addConstraint(Sketcher.Constraint("Coincident", 0, 2, 1, 1))
sketch19.addConstraint(Sketcher.Constraint("Coincident", 1, 2, 2, 1))
sketch19.addConstraint(Sketcher.Constraint("Coincident", 2, 2, 0, 1))
sketch19.addConstraint(Sketcher.Constraint("Vertical", 0))
sketch19.addConstraint(Sketcher.Constraint("Horizontal", 2))
sketch19.addConstraint(Sketcher.Constraint("DistanceX", 2, 2, 2, 1, 10.0))
sketch19.addConstraint(Sketcher.Constraint("DistanceX", -1, 1, 0, 2, 12.5))
sketch19.addConstraint(Sketcher.Constraint("DistanceY", -1, 1, 1, 2, 4.8))
sketch19.addConstraint(Sketcher.Constraint("DistanceY", 0, 2, 0, 1, 8.228571))
pad9 = doc.addObject("PartDesign::Pad", "Pad008")
body.addObject(pad9)
pad9.Profile = sketch19
pad9.Length = 1

# Sketch on XY plane
sketch20 = doc.addObject("Sketcher::SketchObject", "Sketch019")
body.addObject(sketch20)
sketch20.AttachmentSupport = (doc.XY_Plane, [""])
sketch20.MapMode = "FlatFace"
sketch20.AttachmentOffset = App.Placement(Vector(0, 0, -25.2), App.Rotation())
sketch20.addGeometry(Part.LineSegment(Vector(-44.9, 5, 0), Vector(-44.9, 0, 0)), False)
sketch20.addGeometry(Part.LineSegment(Vector(-44.9, 0, 0), Vector(-45.7, 0, 0)), False)
sketch20.addGeometry(Part.LineSegment(Vector(-45.7, 0, 0), Vector(-45.7, 5, 0)), False)
sketch20.addGeometry(Part.LineSegment(Vector(-45.7, 5, 0), Vector(-44.9, 5, 0)), False)
sketch20.addConstraint(Sketcher.Constraint("Coincident", 0, 2, 1, 1))
sketch20.addConstraint(Sketcher.Constraint("Coincident", 1, 2, 2, 1))
sketch20.addConstraint(Sketcher.Constraint("Coincident", 2, 2, 3, 1))
sketch20.addConstraint(Sketcher.Constraint("Coincident", 3, 2, 0, 1))
sketch20.addConstraint(Sketcher.Constraint("Vertical", 0))
sketch20.addConstraint(Sketcher.Constraint("Horizontal", 1))
sketch20.addConstraint(Sketcher.Constraint("Vertical", 2))
sketch20.addConstraint(Sketcher.Constraint("Horizontal", 3))
sketch20.addConstraint(Sketcher.Constraint("PointOnObject", 0, 2, -1))
sketch20.addConstraint(Sketcher.Constraint("DistanceY", 0, 2, 0, 1, 5.0))
sketch20.addConstraint(Sketcher.Constraint("DistanceX", 1, 2, 1, 1, 0.78))
sketch20.addConstraint(Sketcher.Constraint("DistanceX", 1, 2, -1, 1, 45.7))
pad10 = doc.addObject("PartDesign::Pad", "Pad009")
body.addObject(pad10)
pad10.Profile = sketch20
pad10.Length = 31

# Sketch on YZ plane
sketch21 = doc.addObject("Sketcher::SketchObject", "Sketch020")
body.addObject(sketch21)
sketch21.AttachmentSupport = (doc.YZ_Plane, [""])
sketch21.MapMode = "FlatFace"
sketch21.AttachmentOffset = App.Placement(Vector(0, 0, -45.7), App.Rotation())
sketch21.addGeometry(Part.LineSegment(Vector(5, 0, 0), Vector(5, -9.6, 0)), False)
sketch21.addGeometry(Part.LineSegment(Vector(5, -9.6, 0), Vector(22.5, 4.8, 0)), False)
sketch21.addGeometry(Part.LineSegment(Vector(22.5, 4.8, 0), Vector(12.5, 4.8, 0)), False)
sketch21.addGeometry(Part.LineSegment(Vector(12.5, 4.8, 0), Vector(12.5, 0, 0)), False)
sketch21.addGeometry(Part.LineSegment(Vector(12.5, 0, 0), Vector(5, 0, 0)), False)
sketch21.addConstraint(Sketcher.Constraint("Coincident", 0, 2, 1, 1))
sketch21.addConstraint(Sketcher.Constraint("Coincident", 1, 2, 2, 1))
sketch21.addConstraint(Sketcher.Constraint("Coincident", 2, 2, 3, 1))
sketch21.addConstraint(Sketcher.Constraint("Coincident", 3, 2, 4, 1))
sketch21.addConstraint(Sketcher.Constraint("Coincident", 4, 2, 0, 1))
sketch21.addConstraint(Sketcher.Constraint("Vertical", 0))
sketch21.addConstraint(Sketcher.Constraint("Horizontal", 2))
sketch21.addConstraint(Sketcher.Constraint("Vertical", 3))
sketch21.addConstraint(Sketcher.Constraint("Horizontal", 4))
sketch21.addConstraint(Sketcher.Constraint("PointOnObject", 3, 2, -1))
sketch21.addConstraint(Sketcher.Constraint("DistanceX", 2, 2, 2, 1, 10.0))
sketch21.addConstraint(Sketcher.Constraint("DistanceX", 4, 2, 4, 1, 7.5))
sketch21.addConstraint(Sketcher.Constraint("DistanceY", 0, 2, 0, 1, 9.6))
sketch21.addConstraint(Sketcher.Constraint("DistanceY", 3, 2, 3, 1, 4.8))
sketch21.addConstraint(Sketcher.Constraint("DistanceX", -1, 1, 0, 2, 5.0))
pad11 = doc.addObject("PartDesign::Pad", "Pad010")
body.addObject(pad11)
pad11.Profile = sketch21
pad11.Length = 0.78

# Sketch on XY plane
sketch22 = doc.addObject("Sketcher::SketchObject", "Sketch021")
body.addObject(sketch22)
sketch22.AttachmentSupport = (doc.XY_Plane, [""])
sketch22.MapMode = "FlatFace"
sketch22.AttachmentOffset = App.Placement(Vector(0, 0, -25.2), App.Rotation())
sketch22.addGeometry(Part.LineSegment(Vector(-62.6, -10, 0), Vector(-64.6, -10, 0)), False)
sketch22.addGeometry(Part.LineSegment(Vector(-64.6, -10, 0), Vector(-64.6, 24.8, 0)), False)
sketch22.addGeometry(Part.LineSegment(Vector(-64.6, 24.8, 0), Vector(-62.6, 24.8, 0)), False)
sketch22.addGeometry(Part.LineSegment(Vector(-62.6, 24.8, 0), Vector(-62.6, -10, 0)), False)
sketch22.addConstraint(Sketcher.Constraint("Coincident", 0, 2, 1, 1))
sketch22.addConstraint(Sketcher.Constraint("Coincident", 1, 2, 2, 1))
sketch22.addConstraint(Sketcher.Constraint("Coincident", 2, 2, 3, 1))
sketch22.addConstraint(Sketcher.Constraint("Coincident", 3, 2, 0, 1))
sketch22.addConstraint(Sketcher.Constraint("Horizontal", 0))
sketch22.addConstraint(Sketcher.Constraint("Vertical", 1))
sketch22.addConstraint(Sketcher.Constraint("Horizontal", 2))
sketch22.addConstraint(Sketcher.Constraint("Vertical", 3))
sketch22.addConstraint(Sketcher.Constraint("DistanceY", 0, 2, -1, 1, 10.0))
sketch22.addConstraint(Sketcher.Constraint("DistanceX", 2, 2, -1, 1, 62.58))
sketch22.addConstraint(Sketcher.Constraint("DistanceX", 0, 2, 0, 1, 1.99437))
sketch22.addConstraint(Sketcher.Constraint("DistanceY", 1, 1, 1, 2, 34.783085))
pocket11 = doc.addObject("PartDesign::Pocket", "Pocket010")
body.addObject(pocket11)
pocket11.Profile = sketch22
pocket11.Length = 220.78
pocket11.Reversed = True

# Sketch on XZ plane
sketch23 = doc.addObject("Sketcher::SketchObject", "Sketch022")
body.addObject(sketch23)
sketch23.AttachmentSupport = (doc.XZ_Plane, [""])
sketch23.MapMode = "FlatFace"
sketch23.AttachmentOffset = App.Placement(Vector(0, 0, -5), App.Rotation())
sketch23.addGeometry(Part.Circle(Vector(-50.2, -15.2, 0), Vector(0, 0, 1), 2), False)
sketch23.addConstraint(Sketcher.Constraint("Diameter", 0, 4.0))
sketch23.addConstraint(Sketcher.Constraint("DistanceY", 0, 3, -1, 1, 15.2))
sketch23.addConstraint(Sketcher.Constraint("DistanceX", 0, 3, -1, 1, 50.22))
pocket12 = doc.addObject("PartDesign::Pocket", "Pocket011")
body.addObject(pocket12)
pocket12.Profile = sketch23
pocket12.Length = 220.78
pocket12.Reversed = True

# Sketch on XY plane
sketch24 = doc.addObject("Sketcher::SketchObject", "Sketch023")
body.addObject(sketch24)
sketch24.AttachmentSupport = (doc.XY_Plane, [""])
sketch24.MapMode = "FlatFace"
sketch24.AttachmentOffset = App.Placement(Vector(0, 0, -25.2), App.Rotation())
sketch24.addGeometry(Part.LineSegment(Vector(59.38, 0, 0), Vector(59.38, -10, 0)), False)
sketch24.addGeometry(Part.LineSegment(Vector(59.38, -10, 0), Vector(59.18, -10, 0)), False)
sketch24.addGeometry(Part.LineSegment(Vector(59.18, -10, 0), Vector(59.18, 0, 0)), False)
sketch24.addGeometry(Part.LineSegment(Vector(59.18, 0, 0), Vector(59.38, 0, 0)), False)
sketch24.addConstraint(Sketcher.Constraint("Coincident", 0, 2, 1, 1))
sketch24.addConstraint(Sketcher.Constraint("Coincident", 1, 2, 2, 1))
sketch24.addConstraint(Sketcher.Constraint("Coincident", 2, 2, 3, 1))
sketch24.addConstraint(Sketcher.Constraint("Coincident", 3, 2, 0, 1))
sketch24.addConstraint(Sketcher.Constraint("Vertical", 0))
sketch24.addConstraint(Sketcher.Constraint("Horizontal", 1))
sketch24.addConstraint(Sketcher.Constraint("Vertical", 2))
sketch24.addConstraint(Sketcher.Constraint("Horizontal", 3))
sketch24.addConstraint(Sketcher.Constraint("PointOnObject", 2, 2, -1))
sketch24.addConstraint(Sketcher.Constraint("DistanceY", 0, 2, 0, 1, 10.0))
sketch24.addConstraint(Sketcher.Constraint("DistanceX", 1, 2, 1, 1, 0.2))
sketch24.addConstraint(Sketcher.Constraint("DistanceX", -1, 1, 0, 2, 59.38))
pad12 = doc.addObject("PartDesign::Pad", "Pad011")
body.addObject(pad12)
pad12.Profile = sketch24
pad12.Length = 30.78

doc.recompute()
